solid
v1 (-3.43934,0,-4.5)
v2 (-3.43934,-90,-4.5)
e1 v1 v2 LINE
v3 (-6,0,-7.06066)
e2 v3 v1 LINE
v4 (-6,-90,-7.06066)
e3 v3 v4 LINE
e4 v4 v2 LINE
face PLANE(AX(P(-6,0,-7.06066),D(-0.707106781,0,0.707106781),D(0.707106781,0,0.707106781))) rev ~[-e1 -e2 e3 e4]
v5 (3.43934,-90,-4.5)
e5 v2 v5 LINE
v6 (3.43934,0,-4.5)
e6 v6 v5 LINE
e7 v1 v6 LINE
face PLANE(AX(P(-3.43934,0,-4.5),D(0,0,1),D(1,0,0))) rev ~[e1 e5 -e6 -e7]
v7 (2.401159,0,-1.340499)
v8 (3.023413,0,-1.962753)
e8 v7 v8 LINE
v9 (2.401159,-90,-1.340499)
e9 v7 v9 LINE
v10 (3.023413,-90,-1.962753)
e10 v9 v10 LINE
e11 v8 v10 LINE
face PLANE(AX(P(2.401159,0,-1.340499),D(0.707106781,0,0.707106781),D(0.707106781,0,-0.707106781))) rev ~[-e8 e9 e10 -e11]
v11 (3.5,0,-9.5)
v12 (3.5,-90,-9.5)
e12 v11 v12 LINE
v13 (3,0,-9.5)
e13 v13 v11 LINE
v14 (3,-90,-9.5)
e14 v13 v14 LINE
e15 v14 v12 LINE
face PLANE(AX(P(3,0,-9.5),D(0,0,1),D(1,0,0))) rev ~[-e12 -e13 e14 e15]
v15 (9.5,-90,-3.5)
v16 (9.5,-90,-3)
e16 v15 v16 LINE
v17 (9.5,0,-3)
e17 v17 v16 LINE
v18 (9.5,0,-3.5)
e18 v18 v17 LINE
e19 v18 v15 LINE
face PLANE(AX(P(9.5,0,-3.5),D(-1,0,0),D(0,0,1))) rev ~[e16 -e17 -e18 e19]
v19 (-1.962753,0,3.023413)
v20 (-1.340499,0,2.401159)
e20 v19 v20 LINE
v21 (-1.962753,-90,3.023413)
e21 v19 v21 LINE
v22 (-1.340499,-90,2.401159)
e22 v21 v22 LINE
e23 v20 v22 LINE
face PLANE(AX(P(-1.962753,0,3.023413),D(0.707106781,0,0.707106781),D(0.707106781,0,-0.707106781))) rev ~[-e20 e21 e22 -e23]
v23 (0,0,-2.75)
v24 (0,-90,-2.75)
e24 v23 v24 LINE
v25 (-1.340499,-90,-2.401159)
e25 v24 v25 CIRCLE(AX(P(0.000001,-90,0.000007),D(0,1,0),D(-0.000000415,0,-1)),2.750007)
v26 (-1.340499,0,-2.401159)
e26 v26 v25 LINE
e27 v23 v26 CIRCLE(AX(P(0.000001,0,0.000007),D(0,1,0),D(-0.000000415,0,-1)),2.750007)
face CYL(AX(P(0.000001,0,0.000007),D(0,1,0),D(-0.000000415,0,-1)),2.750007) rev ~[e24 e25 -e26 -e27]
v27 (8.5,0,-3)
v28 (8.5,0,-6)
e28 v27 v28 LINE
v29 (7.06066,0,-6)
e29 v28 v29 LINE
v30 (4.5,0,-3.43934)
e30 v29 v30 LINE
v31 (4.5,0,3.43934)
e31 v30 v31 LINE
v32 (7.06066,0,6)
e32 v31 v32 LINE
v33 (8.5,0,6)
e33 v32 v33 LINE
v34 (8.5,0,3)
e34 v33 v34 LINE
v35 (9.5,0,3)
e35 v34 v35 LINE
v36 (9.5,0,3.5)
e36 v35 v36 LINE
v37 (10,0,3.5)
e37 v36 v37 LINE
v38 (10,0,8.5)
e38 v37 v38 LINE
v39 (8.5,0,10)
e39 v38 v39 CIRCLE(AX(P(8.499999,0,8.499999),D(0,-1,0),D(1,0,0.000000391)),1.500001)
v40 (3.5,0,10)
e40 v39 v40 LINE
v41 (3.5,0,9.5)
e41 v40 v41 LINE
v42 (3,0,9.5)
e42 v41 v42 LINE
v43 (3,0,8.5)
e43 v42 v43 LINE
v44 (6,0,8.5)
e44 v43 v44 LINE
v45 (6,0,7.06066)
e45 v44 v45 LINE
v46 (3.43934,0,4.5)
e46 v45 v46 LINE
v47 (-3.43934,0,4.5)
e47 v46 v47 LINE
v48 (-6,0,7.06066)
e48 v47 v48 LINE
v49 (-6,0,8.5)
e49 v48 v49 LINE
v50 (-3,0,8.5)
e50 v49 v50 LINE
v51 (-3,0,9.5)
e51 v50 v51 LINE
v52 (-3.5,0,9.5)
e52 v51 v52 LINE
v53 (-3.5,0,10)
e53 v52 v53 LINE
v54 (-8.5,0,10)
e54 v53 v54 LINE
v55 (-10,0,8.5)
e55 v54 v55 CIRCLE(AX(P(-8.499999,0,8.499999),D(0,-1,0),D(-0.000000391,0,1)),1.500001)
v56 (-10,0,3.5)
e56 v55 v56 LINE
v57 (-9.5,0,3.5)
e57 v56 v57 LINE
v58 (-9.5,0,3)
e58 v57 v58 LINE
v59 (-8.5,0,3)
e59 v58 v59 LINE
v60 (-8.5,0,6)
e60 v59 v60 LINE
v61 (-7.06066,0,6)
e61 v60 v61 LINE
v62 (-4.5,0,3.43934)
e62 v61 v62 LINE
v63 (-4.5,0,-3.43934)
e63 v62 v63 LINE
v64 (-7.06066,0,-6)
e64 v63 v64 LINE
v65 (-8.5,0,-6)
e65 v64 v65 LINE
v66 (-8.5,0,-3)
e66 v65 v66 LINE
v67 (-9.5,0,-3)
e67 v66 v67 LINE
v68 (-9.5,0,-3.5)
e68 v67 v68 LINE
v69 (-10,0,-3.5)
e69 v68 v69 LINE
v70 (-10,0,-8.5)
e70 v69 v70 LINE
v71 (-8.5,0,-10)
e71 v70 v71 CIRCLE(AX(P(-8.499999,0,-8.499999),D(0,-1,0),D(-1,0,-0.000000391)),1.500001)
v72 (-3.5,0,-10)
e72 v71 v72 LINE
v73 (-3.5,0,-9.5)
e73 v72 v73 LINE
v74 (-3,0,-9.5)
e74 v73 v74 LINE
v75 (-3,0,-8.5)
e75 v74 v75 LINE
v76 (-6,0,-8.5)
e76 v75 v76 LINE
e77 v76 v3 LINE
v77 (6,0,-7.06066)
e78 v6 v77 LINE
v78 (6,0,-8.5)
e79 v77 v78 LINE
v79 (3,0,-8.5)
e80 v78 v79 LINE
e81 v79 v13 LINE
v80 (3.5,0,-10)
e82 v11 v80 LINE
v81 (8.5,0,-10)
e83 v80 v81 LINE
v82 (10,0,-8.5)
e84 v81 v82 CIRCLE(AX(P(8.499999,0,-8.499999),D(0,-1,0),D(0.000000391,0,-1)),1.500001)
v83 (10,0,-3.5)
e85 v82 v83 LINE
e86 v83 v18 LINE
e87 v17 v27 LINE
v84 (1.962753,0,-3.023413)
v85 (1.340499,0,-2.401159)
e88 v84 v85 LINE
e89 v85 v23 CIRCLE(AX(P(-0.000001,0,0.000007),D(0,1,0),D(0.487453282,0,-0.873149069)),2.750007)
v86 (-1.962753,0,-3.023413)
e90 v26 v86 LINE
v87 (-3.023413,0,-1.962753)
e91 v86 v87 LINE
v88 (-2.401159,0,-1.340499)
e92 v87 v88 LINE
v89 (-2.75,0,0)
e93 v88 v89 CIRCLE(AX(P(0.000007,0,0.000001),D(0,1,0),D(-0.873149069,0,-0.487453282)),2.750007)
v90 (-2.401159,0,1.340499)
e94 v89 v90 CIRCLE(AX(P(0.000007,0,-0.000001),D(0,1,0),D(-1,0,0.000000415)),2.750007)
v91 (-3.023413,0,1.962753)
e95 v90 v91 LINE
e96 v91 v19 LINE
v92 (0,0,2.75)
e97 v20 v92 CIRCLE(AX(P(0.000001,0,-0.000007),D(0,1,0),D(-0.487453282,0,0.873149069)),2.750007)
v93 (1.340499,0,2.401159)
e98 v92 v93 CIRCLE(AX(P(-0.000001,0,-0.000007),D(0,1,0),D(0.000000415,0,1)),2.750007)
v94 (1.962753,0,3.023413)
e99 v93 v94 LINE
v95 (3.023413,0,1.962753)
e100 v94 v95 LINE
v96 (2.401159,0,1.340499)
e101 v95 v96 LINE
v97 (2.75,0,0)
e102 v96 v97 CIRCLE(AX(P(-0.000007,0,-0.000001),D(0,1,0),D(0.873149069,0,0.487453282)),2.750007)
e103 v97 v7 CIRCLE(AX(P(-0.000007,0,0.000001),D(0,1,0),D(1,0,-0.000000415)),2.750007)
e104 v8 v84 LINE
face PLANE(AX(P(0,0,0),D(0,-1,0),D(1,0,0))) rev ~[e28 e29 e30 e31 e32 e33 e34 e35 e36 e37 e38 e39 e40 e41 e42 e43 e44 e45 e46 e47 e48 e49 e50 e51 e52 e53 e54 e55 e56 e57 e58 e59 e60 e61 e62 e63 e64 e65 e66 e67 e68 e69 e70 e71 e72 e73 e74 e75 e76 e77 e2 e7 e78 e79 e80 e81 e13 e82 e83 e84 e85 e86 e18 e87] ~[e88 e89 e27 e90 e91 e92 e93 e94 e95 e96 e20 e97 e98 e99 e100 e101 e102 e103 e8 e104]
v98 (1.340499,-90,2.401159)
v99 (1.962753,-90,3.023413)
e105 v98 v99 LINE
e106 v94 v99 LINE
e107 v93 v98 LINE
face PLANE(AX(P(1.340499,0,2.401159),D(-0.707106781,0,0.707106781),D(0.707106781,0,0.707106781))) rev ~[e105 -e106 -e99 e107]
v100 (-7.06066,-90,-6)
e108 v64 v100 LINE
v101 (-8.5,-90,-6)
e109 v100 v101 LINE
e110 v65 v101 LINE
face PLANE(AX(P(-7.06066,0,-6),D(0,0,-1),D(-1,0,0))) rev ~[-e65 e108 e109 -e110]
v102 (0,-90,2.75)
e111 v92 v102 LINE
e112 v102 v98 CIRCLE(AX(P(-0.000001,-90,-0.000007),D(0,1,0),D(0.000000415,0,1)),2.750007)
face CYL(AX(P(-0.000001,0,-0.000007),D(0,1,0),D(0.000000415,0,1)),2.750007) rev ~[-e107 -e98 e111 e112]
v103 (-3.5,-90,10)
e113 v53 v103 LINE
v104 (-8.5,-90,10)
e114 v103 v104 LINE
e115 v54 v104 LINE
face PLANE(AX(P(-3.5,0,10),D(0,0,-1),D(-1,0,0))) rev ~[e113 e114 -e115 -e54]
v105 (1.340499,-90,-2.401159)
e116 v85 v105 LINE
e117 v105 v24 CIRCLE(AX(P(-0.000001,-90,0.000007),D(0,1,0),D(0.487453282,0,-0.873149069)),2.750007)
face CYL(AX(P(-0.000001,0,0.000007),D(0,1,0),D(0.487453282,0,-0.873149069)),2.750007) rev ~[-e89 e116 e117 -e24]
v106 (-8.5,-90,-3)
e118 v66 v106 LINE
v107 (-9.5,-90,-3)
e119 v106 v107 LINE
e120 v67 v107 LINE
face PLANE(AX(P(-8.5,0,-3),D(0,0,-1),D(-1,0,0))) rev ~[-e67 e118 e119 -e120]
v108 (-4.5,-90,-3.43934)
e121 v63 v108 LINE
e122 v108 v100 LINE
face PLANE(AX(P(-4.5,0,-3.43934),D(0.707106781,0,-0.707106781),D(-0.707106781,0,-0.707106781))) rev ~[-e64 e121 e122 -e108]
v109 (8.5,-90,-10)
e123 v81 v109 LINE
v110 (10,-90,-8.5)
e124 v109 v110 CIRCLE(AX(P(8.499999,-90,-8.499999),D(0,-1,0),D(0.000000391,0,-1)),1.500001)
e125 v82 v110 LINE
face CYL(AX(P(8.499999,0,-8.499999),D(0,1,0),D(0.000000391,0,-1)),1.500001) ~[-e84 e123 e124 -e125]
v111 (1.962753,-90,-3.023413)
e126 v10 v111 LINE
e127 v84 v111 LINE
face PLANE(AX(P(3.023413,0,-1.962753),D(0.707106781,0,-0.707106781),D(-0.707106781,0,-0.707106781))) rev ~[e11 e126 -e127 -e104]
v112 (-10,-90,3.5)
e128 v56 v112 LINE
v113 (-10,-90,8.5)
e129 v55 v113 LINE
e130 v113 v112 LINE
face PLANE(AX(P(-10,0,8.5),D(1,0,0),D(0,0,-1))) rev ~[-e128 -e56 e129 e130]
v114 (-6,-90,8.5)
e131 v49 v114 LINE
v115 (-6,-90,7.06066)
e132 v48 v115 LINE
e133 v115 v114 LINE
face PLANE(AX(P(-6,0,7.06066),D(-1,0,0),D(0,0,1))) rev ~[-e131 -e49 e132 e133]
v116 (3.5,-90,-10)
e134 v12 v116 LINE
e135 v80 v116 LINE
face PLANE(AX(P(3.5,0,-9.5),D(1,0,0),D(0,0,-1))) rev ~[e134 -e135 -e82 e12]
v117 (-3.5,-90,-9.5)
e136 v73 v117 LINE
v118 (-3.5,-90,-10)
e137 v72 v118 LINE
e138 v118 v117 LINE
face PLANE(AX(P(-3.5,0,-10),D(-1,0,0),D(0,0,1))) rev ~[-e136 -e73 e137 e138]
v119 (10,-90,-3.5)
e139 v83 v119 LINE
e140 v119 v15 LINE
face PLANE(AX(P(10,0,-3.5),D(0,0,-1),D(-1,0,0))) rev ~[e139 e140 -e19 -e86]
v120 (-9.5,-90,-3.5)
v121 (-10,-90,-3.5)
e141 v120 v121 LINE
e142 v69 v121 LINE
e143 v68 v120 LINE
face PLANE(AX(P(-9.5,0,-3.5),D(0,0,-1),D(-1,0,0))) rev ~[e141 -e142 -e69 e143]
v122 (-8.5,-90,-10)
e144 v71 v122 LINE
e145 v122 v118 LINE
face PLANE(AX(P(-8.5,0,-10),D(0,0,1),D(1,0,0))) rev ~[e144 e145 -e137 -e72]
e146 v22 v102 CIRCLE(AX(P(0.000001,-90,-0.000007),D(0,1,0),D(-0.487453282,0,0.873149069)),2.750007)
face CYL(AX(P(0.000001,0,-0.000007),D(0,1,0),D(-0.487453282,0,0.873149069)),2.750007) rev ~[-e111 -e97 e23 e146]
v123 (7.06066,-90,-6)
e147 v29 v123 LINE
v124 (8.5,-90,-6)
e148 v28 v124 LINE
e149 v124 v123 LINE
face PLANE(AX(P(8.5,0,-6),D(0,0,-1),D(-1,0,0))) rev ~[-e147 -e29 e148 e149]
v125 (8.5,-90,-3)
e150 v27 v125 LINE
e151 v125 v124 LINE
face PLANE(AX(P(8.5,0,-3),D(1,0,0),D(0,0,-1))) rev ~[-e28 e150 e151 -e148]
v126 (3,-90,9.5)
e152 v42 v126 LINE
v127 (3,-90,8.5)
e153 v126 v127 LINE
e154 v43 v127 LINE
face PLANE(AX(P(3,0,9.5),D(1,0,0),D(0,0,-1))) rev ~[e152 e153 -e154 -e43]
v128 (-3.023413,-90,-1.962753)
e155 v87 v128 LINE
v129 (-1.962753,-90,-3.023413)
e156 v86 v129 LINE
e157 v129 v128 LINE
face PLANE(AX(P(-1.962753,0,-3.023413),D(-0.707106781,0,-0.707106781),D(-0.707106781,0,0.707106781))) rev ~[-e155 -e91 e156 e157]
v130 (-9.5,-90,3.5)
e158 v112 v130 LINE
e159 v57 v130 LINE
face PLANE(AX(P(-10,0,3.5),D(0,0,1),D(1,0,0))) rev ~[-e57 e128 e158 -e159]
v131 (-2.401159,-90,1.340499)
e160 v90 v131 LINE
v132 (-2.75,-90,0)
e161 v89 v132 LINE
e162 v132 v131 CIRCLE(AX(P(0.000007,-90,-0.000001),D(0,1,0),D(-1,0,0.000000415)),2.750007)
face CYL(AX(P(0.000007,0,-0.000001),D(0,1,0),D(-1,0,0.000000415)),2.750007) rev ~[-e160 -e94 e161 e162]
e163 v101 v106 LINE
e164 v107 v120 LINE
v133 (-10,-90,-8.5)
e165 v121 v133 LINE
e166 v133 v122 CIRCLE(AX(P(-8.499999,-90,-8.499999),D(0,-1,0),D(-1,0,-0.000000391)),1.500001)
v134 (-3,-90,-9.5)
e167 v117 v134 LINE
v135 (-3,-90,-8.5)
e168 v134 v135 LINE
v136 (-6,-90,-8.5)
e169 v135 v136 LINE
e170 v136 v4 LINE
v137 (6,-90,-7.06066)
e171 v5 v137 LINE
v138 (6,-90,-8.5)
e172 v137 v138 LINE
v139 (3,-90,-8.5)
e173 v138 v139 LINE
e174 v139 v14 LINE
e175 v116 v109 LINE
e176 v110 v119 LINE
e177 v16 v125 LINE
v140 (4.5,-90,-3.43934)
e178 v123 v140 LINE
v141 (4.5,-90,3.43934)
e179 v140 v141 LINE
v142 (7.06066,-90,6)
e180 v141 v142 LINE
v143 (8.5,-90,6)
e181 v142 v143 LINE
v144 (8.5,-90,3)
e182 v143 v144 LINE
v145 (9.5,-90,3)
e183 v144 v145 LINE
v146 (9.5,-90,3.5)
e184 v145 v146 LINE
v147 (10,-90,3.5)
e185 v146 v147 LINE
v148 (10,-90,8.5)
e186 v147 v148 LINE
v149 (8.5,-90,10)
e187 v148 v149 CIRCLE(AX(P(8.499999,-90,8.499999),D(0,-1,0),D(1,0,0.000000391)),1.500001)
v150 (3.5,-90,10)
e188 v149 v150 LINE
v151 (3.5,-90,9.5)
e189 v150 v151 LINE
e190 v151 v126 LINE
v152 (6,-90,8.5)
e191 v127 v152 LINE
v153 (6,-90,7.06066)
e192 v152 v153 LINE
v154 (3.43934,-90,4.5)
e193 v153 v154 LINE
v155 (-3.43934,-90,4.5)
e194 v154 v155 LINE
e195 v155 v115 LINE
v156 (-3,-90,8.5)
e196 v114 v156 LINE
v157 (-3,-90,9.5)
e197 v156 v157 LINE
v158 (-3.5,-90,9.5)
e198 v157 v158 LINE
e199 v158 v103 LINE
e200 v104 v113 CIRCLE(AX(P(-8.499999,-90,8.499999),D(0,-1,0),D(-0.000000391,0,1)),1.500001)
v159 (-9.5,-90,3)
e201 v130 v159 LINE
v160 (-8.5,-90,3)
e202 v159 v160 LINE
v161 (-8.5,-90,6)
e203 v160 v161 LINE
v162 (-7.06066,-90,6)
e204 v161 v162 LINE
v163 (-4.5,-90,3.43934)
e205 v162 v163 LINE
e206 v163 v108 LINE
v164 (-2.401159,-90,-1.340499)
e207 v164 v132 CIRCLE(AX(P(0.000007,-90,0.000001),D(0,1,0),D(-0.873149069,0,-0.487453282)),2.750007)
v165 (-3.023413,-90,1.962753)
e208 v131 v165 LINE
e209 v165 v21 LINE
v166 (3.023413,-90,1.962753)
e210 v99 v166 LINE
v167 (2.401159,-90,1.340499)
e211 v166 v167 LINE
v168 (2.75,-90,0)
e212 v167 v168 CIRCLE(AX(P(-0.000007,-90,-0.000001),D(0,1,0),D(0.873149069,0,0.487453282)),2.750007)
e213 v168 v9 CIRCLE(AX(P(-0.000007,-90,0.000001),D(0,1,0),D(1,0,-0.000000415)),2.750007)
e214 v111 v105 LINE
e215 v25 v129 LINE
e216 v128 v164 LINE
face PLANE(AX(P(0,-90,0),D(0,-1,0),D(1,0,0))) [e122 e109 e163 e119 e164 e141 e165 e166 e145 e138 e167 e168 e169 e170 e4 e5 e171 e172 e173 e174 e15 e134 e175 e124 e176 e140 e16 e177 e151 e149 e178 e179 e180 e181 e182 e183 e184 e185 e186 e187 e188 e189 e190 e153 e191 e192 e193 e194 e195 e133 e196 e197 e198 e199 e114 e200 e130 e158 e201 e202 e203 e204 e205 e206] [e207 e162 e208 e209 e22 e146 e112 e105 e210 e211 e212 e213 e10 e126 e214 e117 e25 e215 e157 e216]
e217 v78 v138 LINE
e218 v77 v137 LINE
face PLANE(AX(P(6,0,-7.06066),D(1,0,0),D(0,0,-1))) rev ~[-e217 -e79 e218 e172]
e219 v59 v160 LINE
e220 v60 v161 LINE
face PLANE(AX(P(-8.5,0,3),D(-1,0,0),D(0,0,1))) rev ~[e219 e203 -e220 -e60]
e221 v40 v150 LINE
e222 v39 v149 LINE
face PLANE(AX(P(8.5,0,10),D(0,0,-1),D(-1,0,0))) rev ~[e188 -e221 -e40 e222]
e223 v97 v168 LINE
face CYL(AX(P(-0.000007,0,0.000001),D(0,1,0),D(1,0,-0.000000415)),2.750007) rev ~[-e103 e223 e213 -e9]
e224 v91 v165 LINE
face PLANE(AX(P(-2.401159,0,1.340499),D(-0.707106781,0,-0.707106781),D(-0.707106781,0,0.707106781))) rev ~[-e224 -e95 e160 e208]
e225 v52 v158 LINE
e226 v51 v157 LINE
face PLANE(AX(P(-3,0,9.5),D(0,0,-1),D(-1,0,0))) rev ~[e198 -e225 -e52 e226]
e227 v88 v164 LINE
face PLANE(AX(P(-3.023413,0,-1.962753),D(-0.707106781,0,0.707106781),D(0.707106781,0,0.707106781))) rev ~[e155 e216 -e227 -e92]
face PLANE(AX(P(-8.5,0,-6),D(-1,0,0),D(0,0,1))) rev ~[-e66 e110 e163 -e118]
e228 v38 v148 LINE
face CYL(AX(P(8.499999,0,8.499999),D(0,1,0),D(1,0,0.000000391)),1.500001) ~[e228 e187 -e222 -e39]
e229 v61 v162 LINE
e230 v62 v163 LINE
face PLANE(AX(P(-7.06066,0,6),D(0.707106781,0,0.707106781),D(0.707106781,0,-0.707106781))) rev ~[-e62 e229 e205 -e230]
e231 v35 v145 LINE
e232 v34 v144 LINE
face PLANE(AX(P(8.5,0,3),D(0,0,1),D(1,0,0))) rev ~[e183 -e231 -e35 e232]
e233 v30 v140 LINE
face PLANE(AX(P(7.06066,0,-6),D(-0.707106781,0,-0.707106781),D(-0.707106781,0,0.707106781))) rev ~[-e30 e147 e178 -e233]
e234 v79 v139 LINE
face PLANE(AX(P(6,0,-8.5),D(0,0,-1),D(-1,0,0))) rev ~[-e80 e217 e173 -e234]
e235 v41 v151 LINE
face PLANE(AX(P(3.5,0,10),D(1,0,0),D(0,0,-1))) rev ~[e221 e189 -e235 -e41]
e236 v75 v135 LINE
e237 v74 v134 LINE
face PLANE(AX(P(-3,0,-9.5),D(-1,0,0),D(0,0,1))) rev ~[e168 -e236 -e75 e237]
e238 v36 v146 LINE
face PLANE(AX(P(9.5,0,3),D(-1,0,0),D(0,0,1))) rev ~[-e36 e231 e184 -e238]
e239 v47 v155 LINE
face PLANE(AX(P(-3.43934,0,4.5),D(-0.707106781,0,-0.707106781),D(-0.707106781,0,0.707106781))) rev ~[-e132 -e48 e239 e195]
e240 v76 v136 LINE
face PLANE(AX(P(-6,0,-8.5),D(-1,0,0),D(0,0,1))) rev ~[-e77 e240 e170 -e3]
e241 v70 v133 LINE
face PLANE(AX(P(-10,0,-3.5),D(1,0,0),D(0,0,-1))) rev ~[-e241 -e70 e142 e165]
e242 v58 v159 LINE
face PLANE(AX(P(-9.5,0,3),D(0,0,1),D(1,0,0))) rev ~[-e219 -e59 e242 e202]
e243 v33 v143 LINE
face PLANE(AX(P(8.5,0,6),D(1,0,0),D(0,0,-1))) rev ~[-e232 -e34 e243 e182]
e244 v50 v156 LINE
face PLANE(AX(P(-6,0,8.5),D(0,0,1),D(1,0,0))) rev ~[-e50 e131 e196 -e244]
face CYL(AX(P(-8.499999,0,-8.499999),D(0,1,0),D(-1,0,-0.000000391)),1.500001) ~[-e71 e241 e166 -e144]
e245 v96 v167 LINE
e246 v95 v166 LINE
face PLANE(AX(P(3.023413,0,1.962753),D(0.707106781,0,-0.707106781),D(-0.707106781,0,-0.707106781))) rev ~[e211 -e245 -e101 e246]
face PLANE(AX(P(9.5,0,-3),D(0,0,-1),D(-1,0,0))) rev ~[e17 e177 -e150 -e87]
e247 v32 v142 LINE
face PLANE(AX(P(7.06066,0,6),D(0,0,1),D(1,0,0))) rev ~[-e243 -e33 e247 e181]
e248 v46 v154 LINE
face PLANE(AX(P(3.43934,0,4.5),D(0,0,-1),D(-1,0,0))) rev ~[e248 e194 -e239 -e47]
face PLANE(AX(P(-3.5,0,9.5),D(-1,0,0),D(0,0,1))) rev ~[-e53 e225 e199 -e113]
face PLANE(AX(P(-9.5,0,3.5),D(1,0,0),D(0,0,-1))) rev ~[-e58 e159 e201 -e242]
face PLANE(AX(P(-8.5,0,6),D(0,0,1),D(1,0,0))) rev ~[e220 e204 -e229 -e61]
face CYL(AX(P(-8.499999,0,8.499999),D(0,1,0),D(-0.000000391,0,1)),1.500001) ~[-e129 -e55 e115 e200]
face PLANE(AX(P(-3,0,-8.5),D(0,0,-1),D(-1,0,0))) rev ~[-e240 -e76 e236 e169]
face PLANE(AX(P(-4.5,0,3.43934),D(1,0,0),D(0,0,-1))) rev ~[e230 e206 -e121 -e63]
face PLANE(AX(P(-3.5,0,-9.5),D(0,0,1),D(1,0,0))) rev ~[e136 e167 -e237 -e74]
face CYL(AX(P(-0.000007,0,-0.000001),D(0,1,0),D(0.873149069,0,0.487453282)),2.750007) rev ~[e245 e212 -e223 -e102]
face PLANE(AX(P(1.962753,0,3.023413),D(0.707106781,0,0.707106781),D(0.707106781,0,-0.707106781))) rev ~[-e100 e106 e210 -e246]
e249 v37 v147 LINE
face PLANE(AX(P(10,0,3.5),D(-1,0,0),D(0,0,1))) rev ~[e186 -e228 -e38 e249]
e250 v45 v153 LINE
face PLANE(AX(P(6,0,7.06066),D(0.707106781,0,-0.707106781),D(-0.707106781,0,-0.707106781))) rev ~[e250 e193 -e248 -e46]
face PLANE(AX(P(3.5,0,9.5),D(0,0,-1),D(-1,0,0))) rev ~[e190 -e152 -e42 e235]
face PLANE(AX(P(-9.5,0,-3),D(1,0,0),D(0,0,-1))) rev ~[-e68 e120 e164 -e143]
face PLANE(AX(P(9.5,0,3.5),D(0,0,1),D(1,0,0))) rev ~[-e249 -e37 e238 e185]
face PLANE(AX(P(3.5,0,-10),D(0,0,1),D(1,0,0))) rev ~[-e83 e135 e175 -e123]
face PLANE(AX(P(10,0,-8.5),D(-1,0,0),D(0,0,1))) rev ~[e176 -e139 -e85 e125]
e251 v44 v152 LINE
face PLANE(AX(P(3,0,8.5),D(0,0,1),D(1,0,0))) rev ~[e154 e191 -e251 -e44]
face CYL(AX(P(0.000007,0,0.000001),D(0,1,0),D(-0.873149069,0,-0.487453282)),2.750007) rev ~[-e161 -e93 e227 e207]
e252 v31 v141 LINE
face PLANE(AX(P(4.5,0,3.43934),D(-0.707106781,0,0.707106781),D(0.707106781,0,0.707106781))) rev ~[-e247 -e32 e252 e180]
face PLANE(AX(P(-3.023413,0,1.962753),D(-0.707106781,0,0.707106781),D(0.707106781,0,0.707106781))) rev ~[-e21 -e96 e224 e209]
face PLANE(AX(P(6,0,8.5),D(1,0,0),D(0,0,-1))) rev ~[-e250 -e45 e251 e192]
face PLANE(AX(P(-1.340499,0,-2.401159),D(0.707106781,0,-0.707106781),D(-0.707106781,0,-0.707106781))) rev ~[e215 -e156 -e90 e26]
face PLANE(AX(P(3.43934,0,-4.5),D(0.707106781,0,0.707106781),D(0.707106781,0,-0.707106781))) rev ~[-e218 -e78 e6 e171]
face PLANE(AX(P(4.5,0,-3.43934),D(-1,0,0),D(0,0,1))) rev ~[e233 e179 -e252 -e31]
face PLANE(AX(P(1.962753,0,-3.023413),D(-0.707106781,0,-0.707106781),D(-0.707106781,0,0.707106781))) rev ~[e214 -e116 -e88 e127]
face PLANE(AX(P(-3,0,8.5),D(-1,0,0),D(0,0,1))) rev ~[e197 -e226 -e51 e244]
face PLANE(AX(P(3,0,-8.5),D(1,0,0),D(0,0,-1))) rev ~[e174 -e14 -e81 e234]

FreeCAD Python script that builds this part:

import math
import FreeCAD as App
import Part
import Sketcher

V = App.Vector
Q = App.Units.Quantity

doc = App.newDocument("Part")
params = doc.addObject("Spreadsheet::Sheet", "Params")
for row, (alias, value) in enumerate([
    ("sketch1_radius", "1.500001 mm"),
    ("sketch1_width", "3 mm"),
    ("sketch1_width2", "5 mm"),
    ("sketch1_width3", "1 mm"),
    ("sketch1_length", "1.5 mm"),
    ("pad1_length", "90 mm"),
], start=1):
    params.set(f"A{row}", alias)
    params.set(f"B{row}", "=" + value)
    params.setAlias(f"B{row}", alias)

body = doc.addObject("PartDesign::Body", "Body")

# Sketch on XZ plane
sketch1 = body.newObject("Sketcher::SketchObject", "Sketch")
sketch1.AttachmentSupport = (doc.getObject("XZ_Plane"), [""])
sketch1.MapMode = "FlatFace"
sketch1.addGeometry(Part.LineSegment(V(3.43934, 4.5, 0), V(-3.43934, 4.5, 0)), False)
sketch1.addGeometry(Part.LineSegment(V(-3.43934, 4.5, 0), V(-6, 7.06066, 0)), False)
sketch1.addGeometry(Part.LineSegment(V(-6, 7.06066, 0), V(-6, 8.5, 0)), False)
sketch1.addGeometry(Part.LineSegment(V(-6, 8.5, 0), V(-3, 8.5, 0)), False)
sketch1.addGeometry(Part.LineSegment(V(-3, 8.5, 0), V(-3, 9.5, 0)), False)
sketch1.addGeometry(Part.LineSegment(V(-3, 9.5, 0), V(-3.5, 9.5, 0)), False)
sketch1.addGeometry(Part.LineSegment(V(-3.5, 9.5, 0), V(-3.5, 10, 0)), False)
sketch1.addGeometry(Part.LineSegment(V(-3.5, 10, 0), V(-8.5, 10, 0)), False)
sketch1.addGeometry(Part.ArcOfCircle(Part.Circle(V(-8.499999, 8.499999, 0), V(0, 0, 1), 1.500001), math.radians(90.000022), math.radians(179.999978)), False)
sketch1.addGeometry(Part.LineSegment(V(-10, 8.5, 0), V(-10, 3.5, 0)), False)
sketch1.addGeometry(Part.LineSegment(V(-10, 3.5, 0), V(-9.5, 3.5, 0)), False)
sketch1.addGeometry(Part.LineSegment(V(-9.5, 3.5, 0), V(-9.5, 3, 0)), False)
sketch1.addGeometry(Part.LineSegment(V(-9.5, 3, 0), V(-8.5, 3, 0)), False)
sketch1.addGeometry(Part.LineSegment(V(-8.5, 3, 0), V(-8.5, 6, 0)), False)
sketch1.addGeometry(Part.LineSegment(V(-8.5, 6, 0), V(-7.06066, 6, 0)), False)
sketch1.addGeometry(Part.LineSegment(V(-7.06066, 6, 0), V(-4.5, 3.43934, 0)), False)
sketch1.addGeometry(Part.LineSegment(V(-4.5, 3.43934, 0), V(-4.5, -3.43934, 0)), False)
sketch1.addGeometry(Part.LineSegment(V(-4.5, -3.43934, 0), V(-7.06066, -6, 0)), False)
sketch1.addGeometry(Part.LineSegment(V(-7.06066, -6, 0), V(-8.5, -6, 0)), False)
sketch1.addGeometry(Part.LineSegment(V(-8.5, -6, 0), V(-8.5, -3, 0)), False)
sketch1.addGeometry(Part.LineSegment(V(-8.5, -3, 0), V(-9.5, -3, 0)), False)
sketch1.addGeometry(Part.LineSegment(V(-9.5, -3, 0), V(-9.5, -3.5, 0)), False)
sketch1.addGeometry(Part.LineSegment(V(-9.5, -3.5, 0), V(-10, -3.5, 0)), False)
sketch1.addGeometry(Part.LineSegment(V(-10, -3.5, 0), V(-10, -8.5, 0)), False)
sketch1.addGeometry(Part.ArcOfCircle(Part.Circle(V(-8.499999, -8.499999, 0), V(0, 0, 1), 1.500001), math.radians(-179.999978), math.radians(-90.000022)), False)
sketch1.addGeometry(Part.LineSegment(V(-8.5, -10, 0), V(-3.5, -10, 0)), False)
sketch1.addGeometry(Part.LineSegment(V(-3.5, -10, 0), V(-3.5, -9.5, 0)), False)
sketch1.addGeometry(Part.LineSegment(V(-3.5, -9.5, 0), V(-3, -9.5, 0)), False)
sketch1.addGeometry(Part.LineSegment(V(-3, -9.5, 0), V(-3, -8.5, 0)), False)
sketch1.addGeometry(Part.LineSegment(V(-3, -8.5, 0), V(-6, -8.5, 0)), False)
sketch1.addGeometry(Part.LineSegment(V(-6, -8.5, 0), V(-6, -7.06066, 0)), False)
sketch1.addGeometry(Part.LineSegment(V(-6, -7.06066, 0), V(-3.43934, -4.5, 0)), False)
sketch1.addGeometry(Part.LineSegment(V(-3.43934, -4.5, 0), V(3.43934, -4.5, 0)), False)
sketch1.addGeometry(Part.LineSegment(V(3.43934, -4.5, 0), V(6, -7.06066, 0)), False)
sketch1.addGeometry(Part.LineSegment(V(6, -7.06066, 0), V(6, -8.5, 0)), False)
sketch1.addGeometry(Part.LineSegment(V(6, -8.5, 0), V(3, -8.5, 0)), False)
sketch1.addGeometry(Part.LineSegment(V(3, -8.5, 0), V(3, -9.5, 0)), False)
sketch1.addGeometry(Part.LineSegment(V(3, -9.5, 0), V(3.5, -9.5, 0)), False)
sketch1.addGeometry(Part.LineSegment(V(3.5, -9.5, 0), V(3.5, -10, 0)), False)
sketch1.addGeometry(Part.LineSegment(V(3.5, -10, 0), V(8.5, -10, 0)), False)
sketch1.addGeometry(Part.ArcOfCircle(Part.Circle(V(8.499999, -8.499999, 0), V(0, 0, 1), 1.500001), math.radians(-89.999978), math.radians(-0.000022)), False)
sketch1.addGeometry(Part.LineSegment(V(10, -8.5, 0), V(10, -3.5, 0)), False)
sketch1.addGeometry(Part.LineSegment(V(10, -3.5, 0), V(9.5, -3.5, 0)), False)
sketch1.addGeometry(Part.LineSegment(V(9.5, -3.5, 0), V(9.5, -3, 0)), False)
sketch1.addGeometry(Part.LineSegment(V(9.5, -3, 0), V(8.5, -3, 0)), False)
sketch1.addGeometry(Part.LineSegment(V(8.5, -3, 0), V(8.5, -6, 0)), False)
sketch1.addGeometry(Part.LineSegment(V(8.5, -6, 0), V(7.06066, -6, 0)), False)
sketch1.addGeometry(Part.LineSegment(V(7.06066, -6, 0), V(4.5, -3.43934, 0)), False)
sketch1.addGeometry(Part.LineSegment(V(4.5, -3.43934, 0), V(4.5, 3.43934, 0)), False)
sketch1.addGeometry(Part.LineSegment(V(4.5, 3.43934, 0), V(7.06066, 6, 0)), False)
sketch1.addGeometry(Part.LineSegment(V(7.06066, 6, 0), V(8.5, 6, 0)), False)
sketch1.addGeometry(Part.LineSegment(V(8.5, 6, 0), V(8.5, 3, 0)), False)
sketch1.addGeometry(Part.LineSegment(V(8.5, 3, 0), V(9.5, 3, 0)), False)
sketch1.addGeometry(Part.LineSegment(V(9.5, 3, 0), V(9.5, 3.5, 0)), False)
sketch1.addGeometry(Part.LineSegment(V(9.5, 3.5, 0), V(10, 3.5, 0)), False)
sketch1.addGeometry(Part.LineSegment(V(10, 3.5, 0), V(10, 8.5, 0)), False)
sketch1.addGeometry(Part.ArcOfCircle(Part.Circle(V(8.499999, 8.499999, 0), V(0, 0, 1), 1.500001), math.radians(0.000022), math.radians(89.999978)), False)
sketch1.addGeometry(Part.LineSegment(V(8.5, 10, 0), V(3.5, 10, 0)), False)
sketch1.addGeometry(Part.LineSegment(V(3.5, 10, 0), V(3.5, 9.5, 0)), False)
sketch1.addGeometry(Part.LineSegment(V(3.5, 9.5, 0), V(3, 9.5, 0)), False)
sketch1.addGeometry(Part.LineSegment(V(3, 9.5, 0), V(3, 8.5, 0)), False)
sketch1.addGeometry(Part.LineSegment(V(3, 8.5, 0), V(6, 8.5, 0)), False)
sketch1.addGeometry(Part.LineSegment(V(6, 8.5, 0), V(6, 7.06066, 0)), False)
sketch1.addGeometry(Part.LineSegment(V(6, 7.06066, 0), V(3.43934, 4.5, 0)), False)
sketch1.addGeometry(Part.LineSegment(V(-1.962753, 3.023413, 0), V(-1.340499, 2.401159, 0)), False)
sketch1.addGeometry(Part.ArcOfCircle(Part.Circle(V(0.000001, -0.000007, 0), V(0, 0, 1), 2.750007), math.radians(90.000024), math.radians(119.17333)), False)
sketch1.addGeometry(Part.ArcOfCircle(Part.Circle(V(-0.000001, -0.000007, 0), V(0, 0, 1), 2.750007), math.radians(60.82667), math.radians(89.999976)), False)
sketch1.addGeometry(Part.LineSegment(V(1.340499, 2.401159, 0), V(1.962753, 3.023413, 0)), False)
sketch1.addGeometry(Part.LineSegment(V(1.962753, 3.023413, 0), V(3.023413, 1.962753, 0)), False)
sketch1.addGeometry(Part.LineSegment(V(3.023413, 1.962753, 0), V(2.401159, 1.340499, 0)), False)
sketch1.addGeometry(Part.ArcOfCircle(Part.Circle(V(-0.000007, -0.000001, 0), V(0, 0, 1), 2.750007), math.radians(0.000024), math.radians(29.17333)), False)
sketch1.addGeometry(Part.ArcOfCircle(Part.Circle(V(-0.000007, 0.000001, 0), V(0, 0, 1), 2.750007), math.radians(-29.17333), math.radians(-0.000024)), False)
sketch1.addGeometry(Part.LineSegment(V(2.401159, -1.340499, 0), V(3.023413, -1.962753, 0)), False)
sketch1.addGeometry(Part.LineSegment(V(3.023413, -1.962753, 0), V(1.962753, -3.023413, 0)), False)
sketch1.addGeometry(Part.LineSegment(V(1.962753, -3.023413, 0), V(1.340499, -2.401159, 0)), False)
sketch1.addGeometry(Part.ArcOfCircle(Part.Circle(V(-0.000001, 0.000007, 0), V(0, 0, 1), 2.750007), math.radians(-89.999976), math.radians(-60.82667)), False)
sketch1.addGeometry(Part.ArcOfCircle(Part.Circle(V(0.000001, 0.000007, 0), V(0, 0, 1), 2.750007), math.radians(-119.17333), math.radians(-90.000024)), False)
sketch1.addGeometry(Part.LineSegment(V(-1.340499, -2.401159, 0), V(-1.962753, -3.023413, 0)), False)
sketch1.addGeometry(Part.LineSegment(V(-1.962753, -3.023413, 0), V(-3.023413, -1.962753, 0)), False)
sketch1.addGeometry(Part.LineSegment(V(-3.023413, -1.962753, 0), V(-2.401159, -1.340499, 0)), False)
sketch1.addGeometry(Part.ArcOfCircle(Part.Circle(V(0.000007, 0.000001, 0), V(0, 0, 1), 2.750007), math.radians(-179.999976), math.radians(-150.82667)), False)
sketch1.addGeometry(Part.ArcOfCircle(Part.Circle(V(0.000007, -0.000001, 0), V(0, 0, 1), 2.750007), math.radians(150.82667), math.radians(179.999976)), False)
sketch1.addGeometry(Part.LineSegment(V(-2.401159, 1.340499, 0), V(-3.023413, 1.962753, 0)), False)
sketch1.addGeometry(Part.LineSegment(V(-3.023413, 1.962753, 0), V(-1.962753, 3.023413, 0)), False)
sketch1.addConstraint(Sketcher.Constraint("Coincident", 0, 2, 1, 1))
sketch1.addConstraint(Sketcher.Constraint("Coincident", 1, 2, 2, 1))
sketch1.addConstraint(Sketcher.Constraint("Coincident", 2, 2, 3, 1))
sketch1.addConstraint(Sketcher.Constraint("Coincident", 3, 2, 4, 1))
sketch1.addConstraint(Sketcher.Constraint("Coincident", 4, 2, 5, 1))
sketch1.addConstraint(Sketcher.Constraint("Coincident", 5, 2, 6, 1))
sketch1.addConstraint(Sketcher.Constraint("Coincident", 6, 2, 7, 1))
sketch1.addConstraint(Sketcher.Constraint("Tangent", 7, 2, 8, 1))
sketch1.addConstraint(Sketcher.Constraint("Tangent", 8, 2, 9, 1))
sketch1.addConstraint(Sketcher.Constraint("Coincident", 9, 2, 10, 1))
sketch1.addConstraint(Sketcher.Constraint("Coincident", 10, 2, 11, 1))
sketch1.addConstraint(Sketcher.Constraint("Coincident", 11, 2, 12, 1))
sketch1.addConstraint(Sketcher.Constraint("Coincident", 12, 2, 13, 1))
sketch1.addConstraint(Sketcher.Constraint("Coincident", 13, 2, 14, 1))
sketch1.addConstraint(Sketcher.Constraint("Coincident", 14, 2, 15, 1))
sketch1.addConstraint(Sketcher.Constraint("Coincident", 15, 2, 16, 1))
sketch1.addConstraint(Sketcher.Constraint("Coincident", 16, 2, 17, 1))
sketch1.addConstraint(Sketcher.Constraint("Coincident", 17, 2, 18, 1))
sketch1.addConstraint(Sketcher.Constraint("Coincident", 18, 2, 19, 1))
sketch1.addConstraint(Sketcher.Constraint("Coincident", 19, 2, 20, 1))
sketch1.addConstraint(Sketcher.Constraint("Coincident", 20, 2, 21, 1))
sketch1.addConstraint(Sketcher.Constraint("Coincident", 21, 2, 22, 1))
sketch1.addConstraint(Sketcher.Constraint("Coincident", 22, 2, 23, 1))
sketch1.addConstraint(Sketcher.Constraint("Tangent", 23, 2, 24, 1))
sketch1.addConstraint(Sketcher.Constraint("Tangent", 24, 2, 25, 1))
sketch1.addConstraint(Sketcher.Constraint("Coincident", 25, 2, 26, 1))
sketch1.addConstraint(Sketcher.Constraint("Coincident", 26, 2, 27, 1))
sketch1.addConstraint(Sketcher.Constraint("Coincident", 27, 2, 28, 1))
sketch1.addConstraint(Sketcher.Constraint("Coincident", 28, 2, 29, 1))
sketch1.addConstraint(Sketcher.Constraint("Coincident", 29, 2, 30, 1))
sketch1.addConstraint(Sketcher.Constraint("Coincident", 30, 2, 31, 1))
sketch1.addConstraint(Sketcher.Constraint("Coincident", 31, 2, 32, 1))
sketch1.addConstraint(Sketcher.Constraint("Coincident", 32, 2, 33, 1))
sketch1.addConstraint(Sketcher.Constraint("Coincident", 33, 2, 34, 1))
sketch1.addConstraint(Sketcher.Constraint("Coincident", 34, 2, 35, 1))
sketch1.addConstraint(Sketcher.Constraint("Coincident", 35, 2, 36, 1))
sketch1.addConstraint(Sketcher.Constraint("Coincident", 36, 2, 37, 1))
sketch1.addConstraint(Sketcher.Constraint("Coincident", 37, 2, 38, 1))
sketch1.addConstraint(Sketcher.Constraint("Coincident", 38, 2, 39, 1))
sketch1.addConstraint(Sketcher.Constraint("Tangent", 39, 2, 40, 1))
sketch1.addConstraint(Sketcher.Constraint("Tangent", 40, 2, 41, 1))
sketch1.addConstraint(Sketcher.Constraint("Coincident", 41, 2, 42, 1))
sketch1.addConstraint(Sketcher.Constraint("Coincident", 42, 2, 43, 1))
sketch1.addConstraint(Sketcher.Constraint("Coincident", 43, 2, 44, 1))
sketch1.addConstraint(Sketcher.Constraint("Coincident", 44, 2, 45, 1))
sketch1.addConstraint(Sketcher.Constraint("Coincident", 45, 2, 46, 1))
sketch1.addConstraint(Sketcher.Constraint("Coincident", 46, 2, 47, 1))
sketch1.addConstraint(Sketcher.Constraint("Coincident", 47, 2, 48, 1))
sketch1.addConstraint(Sketcher.Constraint("Coincident", 48, 2, 49, 1))
sketch1.addConstraint(Sketcher.Constraint("Coincident", 49, 2, 50, 1))
sketch1.addConstraint(Sketcher.Constraint("Coincident", 50, 2, 51, 1))
sketch1.addConstraint(Sketcher.Constraint("Coincident", 51, 2, 52, 1))
sketch1.addConstraint(Sketcher.Constraint("Coincident", 52, 2, 53, 1))
sketch1.addConstraint(Sketcher.Constraint("Coincident", 53, 2, 54, 1))
sketch1.addConstraint(Sketcher.Constraint("Coincident", 54, 2, 55, 1))
sketch1.addConstraint(Sketcher.Constraint("Tangent", 55, 2, 56, 1))
sketch1.addConstraint(Sketcher.Constraint("Tangent", 56, 2, 57, 1))
sketch1.addConstraint(Sketcher.Constraint("Coincident", 57, 2, 58, 1))
sketch1.addConstraint(Sketcher.Constraint("Coincident", 58, 2, 59, 1))
sketch1.addConstraint(Sketcher.Constraint("Coincident", 59, 2, 60, 1))
sketch1.addConstraint(Sketcher.Constraint("Coincident", 60, 2, 61, 1))
sketch1.addConstraint(Sketcher.Constraint("Coincident", 61, 2, 62, 1))
sketch1.addConstraint(Sketcher.Constraint("Coincident", 62, 2, 63, 1))
sketch1.addConstraint(Sketcher.Constraint("Coincident", 63, 2, 0, 1))
sketch1.addConstraint(Sketcher.Constraint("Coincident", 64, 2, 65, 2))
sketch1.addConstraint(Sketcher.Constraint("Tangent", 65, 1, 66, 2))
sketch1.addConstraint(Sketcher.Constraint("Coincident", 66, 1, 67, 1))
sketch1.addConstraint(Sketcher.Constraint("Coincident", 67, 2, 68, 1))
sketch1.addConstraint(Sketcher.Constraint("Coincident", 68, 2, 69, 1))
sketch1.addConstraint(Sketcher.Constraint("Coincident", 69, 2, 70, 2))
sketch1.addConstraint(Sketcher.Constraint("Tangent", 70, 1, 71, 2))
sketch1.addConstraint(Sketcher.Constraint("Coincident", 71, 1, 72, 1))
sketch1.addConstraint(Sketcher.Constraint("Coincident", 72, 2, 73, 1))
sketch1.addConstraint(Sketcher.Constraint("Coincident", 73, 2, 74, 1))
sketch1.addConstraint(Sketcher.Constraint("Coincident", 74, 2, 75, 2))
sketch1.addConstraint(Sketcher.Constraint("Tangent", 75, 1, 76, 2))
sketch1.addConstraint(Sketcher.Constraint("Coincident", 76, 1, 77, 1))
sketch1.addConstraint(Sketcher.Constraint("Coincident", 77, 2, 78, 1))
sketch1.addConstraint(Sketcher.Constraint("Coincident", 78, 2, 79, 1))
sketch1.addConstraint(Sketcher.Constraint("Coincident", 79, 2, 80, 2))
sketch1.addConstraint(Sketcher.Constraint("Tangent", 80, 1, 81, 2))
sketch1.addConstraint(Sketcher.Constraint("Coincident", 81, 1, 82, 1))
sketch1.addConstraint(Sketcher.Constraint("Coincident", 82, 2, 83, 1))
sketch1.addConstraint(Sketcher.Constraint("Coincident", 83, 2, 64, 1))
sketch1.addConstraint(Sketcher.Constraint("Horizontal", 0))
sketch1.addConstraint(Sketcher.Constraint("Vertical", 2))
sketch1.addConstraint(Sketcher.Constraint("Horizontal", 3))
sketch1.addConstraint(Sketcher.Constraint("Vertical", 4))
sketch1.addConstraint(Sketcher.Constraint("Horizontal", 5))
sketch1.addConstraint(Sketcher.Constraint("Vertical", 6))
sketch1.addConstraint(Sketcher.Constraint("Horizontal", 7))
sketch1.addConstraint(Sketcher.Constraint("Vertical", 9))
sketch1.addConstraint(Sketcher.Constraint("Horizontal", 10))
sketch1.addConstraint(Sketcher.Constraint("Vertical", 11))
sketch1.addConstraint(Sketcher.Constraint("Horizontal", 12))
sketch1.addConstraint(Sketcher.Constraint("Vertical", 13))
sketch1.addConstraint(Sketcher.Constraint("Horizontal", 14))
sketch1.addConstraint(Sketcher.Constraint("Vertical", 16))
sketch1.addConstraint(Sketcher.Constraint("Horizontal", 18))
sketch1.addConstraint(Sketcher.Constraint("Vertical", 19))
sketch1.addConstraint(Sketcher.Constraint("Horizontal", 20))
sketch1.addConstraint(Sketcher.Constraint("Vertical", 21))
sketch1.addConstraint(Sketcher.Constraint("Horizontal", 22))
sketch1.addConstraint(Sketcher.Constraint("Vertical", 23))
sketch1.addConstraint(Sketcher.Constraint("Horizontal", 25))
sketch1.addConstraint(Sketcher.Constraint("Vertical", 26))
sketch1.addConstraint(Sketcher.Constraint("Horizontal", 27))
sketch1.addConstraint(Sketcher.Constraint("Vertical", 28))
sketch1.addConstraint(Sketcher.Constraint("Horizontal", 29))
sketch1.addConstraint(Sketcher.Constraint("Vertical", 30))
sketch1.addConstraint(Sketcher.Constraint("Horizontal", 32))
sketch1.addConstraint(Sketcher.Constraint("Vertical", 34))
sketch1.addConstraint(Sketcher.Constraint("Horizontal", 35))
sketch1.addConstraint(Sketcher.Constraint("Vertical", 36))
sketch1.addConstraint(Sketcher.Constraint("Horizontal", 37))
sketch1.addConstraint(Sketcher.Constraint("Vertical", 38))
sketch1.addConstraint(Sketcher.Constraint("Horizontal", 39))
sketch1.addConstraint(Sketcher.Constraint("Vertical", 41))
sketch1.addConstraint(Sketcher.Constraint("Horizontal", 42))
sketch1.addConstraint(Sketcher.Constraint("Vertical", 43))
sketch1.addConstraint(Sketcher.Constraint("Horizontal", 44))
sketch1.addConstraint(Sketcher.Constraint("Vertical", 45))
sketch1.addConstraint(Sketcher.Constraint("Horizontal", 46))
sketch1.addConstraint(Sketcher.Constraint("Vertical", 48))
sketch1.addConstraint(Sketcher.Constraint("Horizontal", 50))
sketch1.addConstraint(Sketcher.Constraint("Vertical", 51))
sketch1.addConstraint(Sketcher.Constraint("Horizontal", 52))
sketch1.addConstraint(Sketcher.Constraint("Vertical", 53))
sketch1.addConstraint(Sketcher.Constraint("Horizontal", 54))
sketch1.addConstraint(Sketcher.Constraint("Vertical", 55))
sketch1.addConstraint(Sketcher.Constraint("Horizontal", 57))
sketch1.addConstraint(Sketcher.Constraint("Vertical", 58))
sketch1.addConstraint(Sketcher.Constraint("Horizontal", 59))
sketch1.addConstraint(Sketcher.Constraint("Vertical", 60))
sketch1.addConstraint(Sketcher.Constraint("Horizontal", 61))
sketch1.addConstraint(Sketcher.Constraint("Vertical", 62))
sketch1.addConstraint(Sketcher.Constraint("Coincident", 65, 3, -1, 1))
sketch1.addConstraint(Sketcher.Constraint("Coincident", 70, 3, -1, 1))
sketch1.addConstraint(Sketcher.Constraint("Coincident", 75, 3, -1, 1))
sketch1.addConstraint(Sketcher.Constraint("Coincident", 80, 3, -1, 1))
sketch1.addConstraint(Sketcher.Constraint("Equal", 8, 24))
sketch1.addConstraint(Sketcher.Constraint("Equal", 24, 40))
sketch1.addConstraint(Sketcher.Constraint("Equal", 40, 56))
sketch1.addConstraint(Sketcher.Constraint("Equal", 65, 66))
sketch1.addConstraint(Sketcher.Constraint("Equal", 66, 70))
sketch1.addConstraint(Sketcher.Constraint("Equal", 70, 71))
sketch1.addConstraint(Sketcher.Constraint("Equal", 71, 75))
sketch1.addConstraint(Sketcher.Constraint("Equal", 75, 76))
sketch1.addConstraint(Sketcher.Constraint("Equal", 76, 80))
sketch1.addConstraint(Sketcher.Constraint("Equal", 80, 81))
sketch1.addConstraint(Sketcher.Constraint("Symmetric", 8, 3, 40, 3, -1, 1))
sketch1.addConstraint(Sketcher.Constraint("Symmetric", 24, 3, 56, 3, -1, 1))
sketch1.addConstraint(Sketcher.Constraint("Symmetric", 0, 2, 32, 2, -1, 1))
sketch1.addConstraint(Sketcher.Constraint("Symmetric", 1, 2, 33, 2, -1, 1))
sketch1.addConstraint(Sketcher.Constraint("Symmetric", 3, 2, 35, 2, -1, 1))
sketch1.addConstraint(Sketcher.Constraint("Symmetric", 5, 2, 37, 2, -1, 1))
sketch1.addConstraint(Sketcher.Constraint("Symmetric", 10, 2, 42, 2, -1, 1))
sketch1.addConstraint(Sketcher.Constraint("Symmetric", 12, 2, 44, 2, -1, 1))
sketch1.addConstraint(Sketcher.Constraint("Symmetric", 14, 2, 46, 2, -1, 1))
sketch1.addConstraint(Sketcher.Constraint("Symmetric", 15, 2, 47, 2, -1, 1))
sketch1.addConstraint(Sketcher.Constraint("Symmetric", 17, 2, 49, 2, -1, 1))
sketch1.addConstraint(Sketcher.Constraint("Symmetric", 19, 2, 51, 2, -1, 1))
sketch1.addConstraint(Sketcher.Constraint("Symmetric", 21, 2, 53, 2, -1, 1))
sketch1.addConstraint(Sketcher.Constraint("Symmetric", 26, 2, 58, 2, -1, 1))
sketch1.addConstraint(Sketcher.Constraint("Symmetric", 28, 2, 60, 2, -1, 1))
sketch1.addConstraint(Sketcher.Constraint("Symmetric", 30, 2, 62, 2, -1, 1))
sketch1.addConstraint(Sketcher.Constraint("Symmetric", 67, 2, 77, 2, -1, 1))
sketch1.addConstraint(Sketcher.Constraint("Symmetric", 68, 2, 78, 2, -1, 1))
sketch1.addConstraint(Sketcher.Constraint("Symmetric", 72, 2, 82, 2, -1, 1))
sketch1.addConstraint(Sketcher.Constraint("Symmetric", 73, 2, 83, 2, -1, 1))
sketch1.addConstraint(Sketcher.Constraint("Symmetric", 24, 3, 40, 3, -2))
sketch1.addConstraint(Sketcher.Constraint("Symmetric", 30, 2, 33, 2, -2))
sketch1.addConstraint(Sketcher.Constraint("Symmetric", 28, 2, 35, 2, -2))
sketch1.addConstraint(Sketcher.Constraint("Symmetric", 26, 2, 37, 2, -2))
sketch1.addConstraint(Sketcher.Constraint("Symmetric", 21, 2, 42, 2, -2))
sketch1.addConstraint(Sketcher.Constraint("Symmetric", 19, 2, 44, 2, -2))
sketch1.addConstraint(Sketcher.Constraint("Symmetric", 17, 2, 46, 2, -2))
sketch1.addConstraint(Sketcher.Constraint("Symmetric", 73, 2, 77, 2, -2))
sketch1.addConstraint(Sketcher.Constraint("Symmetric", 72, 2, 78, 2, -2))
sketch1.addConstraint(Sketcher.Constraint("PointOnObject", 65, 1, -2))
sketch1.addConstraint(Sketcher.Constraint("PointOnObject", 70, 1, -1))
sketch1.addConstraint(Sketcher.Constraint("PointOnObject", 75, 1, -2))
sketch1.addConstraint(Sketcher.Constraint("PointOnObject", 80, 1, -1))
sketch1.addConstraint(Sketcher.Constraint("Parallel", 1, 15))
sketch1.addConstraint(Sketcher.Constraint("Perpendicular", 15, 17))
sketch1.addConstraint(Sketcher.Constraint("Parallel", 17, 31))
sketch1.addConstraint(Sketcher.Constraint("Perpendicular", 47, 49))
sketch1.addConstraint(Sketcher.Constraint("Parallel", 49, 63))
sketch1.addConstraint(Sketcher.Constraint("Perpendicular", 63, 64))
sketch1.addConstraint(Sketcher.Constraint("Perpendicular", 64, 67))
sketch1.addConstraint(Sketcher.Constraint("Perpendicular", 67, 68))
sketch1.addConstraint(Sketcher.Constraint("Perpendicular", 68, 69))
sketch1.addConstraint(Sketcher.Constraint("Perpendicular", 69, 72))
sketch1.addConstraint(Sketcher.Constraint("Perpendicular", 72, 73))
sketch1.addConstraint(Sketcher.Constraint("Perpendicular", 73, 74))
sketch1.addConstraint(Sketcher.Constraint("Perpendicular", 74, 77))
sketch1.addConstraint(Sketcher.Constraint("Perpendicular", 78, 79))
sketch1.addConstraint(Sketcher.Constraint("Perpendicular", 79, 82))
sketch1.addConstraint(Sketcher.Constraint("Horizontal", 56, 3, 2, 2))
sketch1.addConstraint(Sketcher.Constraint("Vertical", 7, 2, 12, 2))
sketch1.addConstraint(Sketcher.Constraint("Equal", 5, 10))
sketch1.addConstraint(Sketcher.Constraint("Equal", 50, 2))
sketch1.addConstraint(Sketcher.Constraint("Equal", 52, 4))
sketch1.addConstraint(Sketcher.Constraint("Equal", 57, 9))
sketch1.addConstraint(Sketcher.Constraint("Equal", 6, 11))
sketch1.addConstraint(Sketcher.Constraint("Equal", 61, 13))
sketch1.addConstraint(Sketcher.Constraint("Equal", 32, 16))
sketch1.addConstraint(Sketcher.Constraint("Equal", 1, 15))
sketch1.addConstraint(Sketcher.Constraint("Equal", 67, 69))
sketch1.addConstraint(Sketcher.Constraint("Radius", 8, Q("1.500001 mm")))
sketch1.addConstraint(Sketcher.Constraint("DistanceX", 3, 1, 3, 2, Q("3 mm")))
sketch1.addConstraint(Sketcher.Constraint("DistanceX", 7, 2, 7, 1, Q("5 mm")))
sketch1.addConstraint(Sketcher.Constraint("DistanceX", 12, 1, 12, 2, Q("1 mm")))
sketch1.addConstraint(Sketcher.Constraint("DistanceX", 1, 2, -1, 1, Q("6 mm")))
sketch1.addConstraint(Sketcher.Constraint("Distance", 68, Q("1.5 mm")))
sketch1.addConstraint(Sketcher.Constraint("DistanceY", -1, 1, 0, 2, Q("4.5 mm")))
sketch1.addConstraint(Sketcher.Constraint("Distance", 64, Q("0.88 mm")))
sketch1.addConstraint(Sketcher.Constraint("DistanceY", -1, 1, 65, 1, Q("2.75 mm")))
sketch1.addConstraint(Sketcher.Constraint("DistanceX", 0, 2, 0, 1, Q("6.87868 mm")))
sketch1.setExpression("Constraints[209]", "Params.sketch1_radius")
sketch1.setExpression("Constraints[210]", "Params.sketch1_width")
sketch1.setExpression("Constraints[211]", "Params.sketch1_width2")
sketch1.setExpression("Constraints[212]", "Params.sketch1_width3")
sketch1.setExpression("Constraints[214]", "Params.sketch1_length")
pad1 = body.newObject("PartDesign::Pad", "Pad")
pad1.Profile = sketch1
pad1.setExpression("Length", "Params.pad1_length")

doc.recompute()
